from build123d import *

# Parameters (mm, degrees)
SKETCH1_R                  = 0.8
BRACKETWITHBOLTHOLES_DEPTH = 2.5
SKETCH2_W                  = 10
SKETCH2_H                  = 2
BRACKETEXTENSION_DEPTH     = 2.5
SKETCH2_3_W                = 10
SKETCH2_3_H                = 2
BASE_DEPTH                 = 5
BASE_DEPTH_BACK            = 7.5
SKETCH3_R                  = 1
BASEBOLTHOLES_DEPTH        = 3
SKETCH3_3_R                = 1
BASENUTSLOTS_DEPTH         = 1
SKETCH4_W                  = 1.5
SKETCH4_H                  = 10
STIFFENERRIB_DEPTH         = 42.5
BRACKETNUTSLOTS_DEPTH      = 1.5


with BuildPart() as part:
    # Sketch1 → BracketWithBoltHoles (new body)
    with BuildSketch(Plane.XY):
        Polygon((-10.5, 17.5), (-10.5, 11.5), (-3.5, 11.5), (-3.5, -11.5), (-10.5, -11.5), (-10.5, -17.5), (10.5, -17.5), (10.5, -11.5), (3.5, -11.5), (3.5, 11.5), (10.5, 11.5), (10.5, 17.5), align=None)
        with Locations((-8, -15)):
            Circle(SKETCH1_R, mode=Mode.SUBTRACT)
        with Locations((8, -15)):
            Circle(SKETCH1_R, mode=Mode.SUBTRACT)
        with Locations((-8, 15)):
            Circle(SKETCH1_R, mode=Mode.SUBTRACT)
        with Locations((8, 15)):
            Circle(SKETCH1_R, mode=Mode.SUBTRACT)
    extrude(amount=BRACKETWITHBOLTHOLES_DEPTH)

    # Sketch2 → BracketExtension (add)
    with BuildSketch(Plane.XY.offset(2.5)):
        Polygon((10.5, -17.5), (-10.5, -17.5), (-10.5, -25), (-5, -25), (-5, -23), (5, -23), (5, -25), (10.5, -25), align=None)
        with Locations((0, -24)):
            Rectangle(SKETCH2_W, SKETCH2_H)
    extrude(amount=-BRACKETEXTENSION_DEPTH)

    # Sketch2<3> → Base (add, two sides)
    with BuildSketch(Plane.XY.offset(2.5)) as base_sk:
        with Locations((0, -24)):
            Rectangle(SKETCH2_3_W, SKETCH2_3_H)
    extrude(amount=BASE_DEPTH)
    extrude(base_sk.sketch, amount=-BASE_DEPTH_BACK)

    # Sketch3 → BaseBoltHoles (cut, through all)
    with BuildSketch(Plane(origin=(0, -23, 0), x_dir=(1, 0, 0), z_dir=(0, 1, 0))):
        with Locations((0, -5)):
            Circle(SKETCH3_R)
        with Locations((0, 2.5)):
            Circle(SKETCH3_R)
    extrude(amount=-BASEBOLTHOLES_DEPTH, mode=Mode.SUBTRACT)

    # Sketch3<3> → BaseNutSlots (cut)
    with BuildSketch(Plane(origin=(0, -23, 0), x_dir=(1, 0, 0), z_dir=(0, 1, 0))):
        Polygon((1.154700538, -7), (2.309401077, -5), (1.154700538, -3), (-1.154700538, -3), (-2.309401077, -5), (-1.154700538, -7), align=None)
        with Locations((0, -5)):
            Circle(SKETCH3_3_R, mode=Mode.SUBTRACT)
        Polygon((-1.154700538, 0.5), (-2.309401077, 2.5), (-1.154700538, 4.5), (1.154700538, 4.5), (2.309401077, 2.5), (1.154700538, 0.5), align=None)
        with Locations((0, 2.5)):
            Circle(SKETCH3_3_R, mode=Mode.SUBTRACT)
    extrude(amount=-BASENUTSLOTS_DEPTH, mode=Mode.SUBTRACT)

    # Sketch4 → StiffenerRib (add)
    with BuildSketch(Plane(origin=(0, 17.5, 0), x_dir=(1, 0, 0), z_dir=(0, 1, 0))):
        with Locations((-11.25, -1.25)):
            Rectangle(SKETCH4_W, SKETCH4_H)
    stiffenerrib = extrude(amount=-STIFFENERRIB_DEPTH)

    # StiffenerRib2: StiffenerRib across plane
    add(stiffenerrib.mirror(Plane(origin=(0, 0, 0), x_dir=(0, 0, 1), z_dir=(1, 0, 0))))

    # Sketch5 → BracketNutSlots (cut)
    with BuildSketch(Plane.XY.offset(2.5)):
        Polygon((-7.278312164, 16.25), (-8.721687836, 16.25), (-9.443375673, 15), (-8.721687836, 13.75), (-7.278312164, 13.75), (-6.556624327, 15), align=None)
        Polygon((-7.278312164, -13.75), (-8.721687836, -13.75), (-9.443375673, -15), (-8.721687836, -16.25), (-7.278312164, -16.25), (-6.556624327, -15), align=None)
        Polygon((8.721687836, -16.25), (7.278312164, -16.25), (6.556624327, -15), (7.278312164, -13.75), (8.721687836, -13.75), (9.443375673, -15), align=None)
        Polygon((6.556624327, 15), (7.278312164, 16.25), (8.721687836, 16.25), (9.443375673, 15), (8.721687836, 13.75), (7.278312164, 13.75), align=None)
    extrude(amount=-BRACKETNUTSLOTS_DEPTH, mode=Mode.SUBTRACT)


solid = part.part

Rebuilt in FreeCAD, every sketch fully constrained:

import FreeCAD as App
import Part
import Sketcher

V = App.Vector
Q = App.Units.Quantity


def add_polygon(sketch, points):
    """Adds a closed chain of lines whose ends are joined by coincident constraints."""
    first, n = sketch.GeometryCount, len(points)
    for a, b in zip(points, points[1:] + points[:1]):
        sketch.addGeometry(Part.LineSegment(App.Vector(*a, 0), App.Vector(*b, 0)), False)
    for i in range(n):
        sketch.addConstraint(Sketcher.Constraint("Coincident", first + i, 2, first + (i + 1) % n, 1))

doc = App.newDocument("Part")
body = doc.addObject("PartDesign::Body", "Body")

sketch1 = body.newObject("Sketcher::SketchObject", "Sketch")
sketch1.AttachmentSupport = (doc.getObject("XY_Plane"), [""])
sketch1.MapMode = "FlatFace"
add_polygon(sketch1, [(-10.5, 17.5), (-10.5, 11.5), (-3.5, 11.5), (-3.5, -11.5), (-10.5, -11.5), (-10.5, -17.5), (10.5, -17.5), (10.5, -11.5), (3.5, -11.5), (3.5, 11.5), (10.5, 11.5), (10.5, 17.5)])
sketch1.addGeometry(Part.Circle(V(-8, -15, 0), V(0, 0, 1), 0.8), False)
sketch1.addGeometry(Part.Circle(V(8, -15, 0), V(0, 0, 1), 0.8), False)
sketch1.addGeometry(Part.Circle(V(-8, 15, 0), V(0, 0, 1), 0.8), False)
sketch1.addGeometry(Part.Circle(V(8, 15, 0), V(0, 0, 1), 0.8), False)
sketch1.addConstraint([
    Sketcher.Constraint("Vertical", 0),
    Sketcher.Constraint("Horizontal", 1),
    Sketcher.Constraint("Vertical", 2),
    Sketcher.Constraint("Horizontal", 3),
    Sketcher.Constraint("Vertical", 4),
    Sketcher.Constraint("Horizontal", 5),
    Sketcher.Constraint("Vertical", 6),
    Sketcher.Constraint("Horizontal", 7),
    Sketcher.Constraint("Vertical", 8),
    Sketcher.Constraint("Horizontal", 9),
    Sketcher.Constraint("Vertical", 10),
    Sketcher.Constraint("Horizontal", 11),
    Sketcher.Constraint("Equal", 12, 13),
    Sketcher.Constraint("Equal", 13, 14),
    Sketcher.Constraint("Equal", 14, 15),
    Sketcher.Constraint("Symmetric", 13, 3, 14, 3, -1, 1),
    Sketcher.Constraint("Symmetric", 12, 3, 15, 3, -1, 1),
    Sketcher.Constraint("Symmetric", 0, 2, 6, 2, -1, 1),
    Sketcher.Constraint("Symmetric", 2, 2, 8, 2, -1, 1),
    Sketcher.Constraint("Symmetric", 4, 2, 10, 2, -1, 1),
    Sketcher.Constraint("Symmetric", 12, 3, 13, 3, -2),
    Sketcher.Constraint("Symmetric", 3, 2, 6, 2, -2),
    Sketcher.Constraint("Diameter", 12, 1.6),
    Sketcher.Constraint("DistanceX", 1, 1, 1, 2, 7.0),
    Sketcher.Constraint("DistanceX", 5, 1, 5, 2, 21.0),
    Sketcher.Constraint("DistanceY", 0, 2, 0, 1, 6.0),
    Sketcher.Constraint("DistanceY", 2, 2, 2, 1, 23.0),
    Sketcher.Constraint("DistanceX", 12, 3, -1, 1, 8.0),
    Sketcher.Constraint("DistanceY", 12, 3, -1, 1, 15.0),
])
pad1 = body.newObject("PartDesign::Pad", "Pad")
pad1.Profile = sketch1
pad1.Length = 2.5

sketch2 = body.newObject("Sketcher::SketchObject", "Sketch001")
sketch2.AttachmentSupport = (doc.getObject("XY_Plane"), [""])
sketch2.MapMode = "FlatFace"
sketch2.AttachmentOffset = App.Placement(V(0, 0, 2.5), App.Rotation())
add_polygon(sketch2, [(10, -18), (-10, -18), (-10, -25), (10, -25)])
sketch2.addConstraint([
    Sketcher.Constraint("Horizontal", 0),
    Sketcher.Constraint("Vertical", 1),
    Sketcher.Constraint("Horizontal", 2),
    Sketcher.Constraint("Vertical", 3),
    Sketcher.Constraint("DistanceX", 0, 2, 0, 1, 21.0),
    Sketcher.Constraint("DistanceY", 1, 2, 1, 1, 7.5),
    Sketcher.Constraint("DistanceY", 1, 2, -1, 1, 25.0),
    Sketcher.Constraint("DistanceX", 0, 2, -1, 1, 10.5),
])
pad2 = body.newObject("PartDesign::Pad", "Pad001")
pad2.Profile = sketch2
pad2.Length = 2.5
pad2.Reversed = True

sketch3 = body.newObject("Sketcher::SketchObject", "Sketch002")
sketch3.AttachmentSupport = (doc.getObject("XY_Plane"), [""])
sketch3.MapMode = "FlatFace"
sketch3.AttachmentOffset = App.Placement(V(0, 0, 2.5), App.Rotation())
add_polygon(sketch3, [(-5, -23), (-5, -25), (5, -25), (5, -23)])
sketch3.addConstraint([
    Sketcher.Constraint("Vertical", 0),
    Sketcher.Constraint("Horizontal", 1),
    Sketcher.Constraint("Vertical", 2),
    Sketcher.Constraint("Horizontal", 3),
    Sketcher.Constraint("DistanceX", 1, 1, 1, 2, 10.0),
    Sketcher.Constraint("DistanceY", 0, 2, 0, 1, 2.0),
    Sketcher.Constraint("DistanceX", 0, 2, -1, 1, 5.0),
    Sketcher.Constraint("DistanceY", 0, 2, -1, 1, 25.0),
])
pad3 = body.newObject("PartDesign::Pad", "Pad002")
pad3.Profile = sketch3
pad3.Type = "TwoLengths"
pad3.Length = 5
pad3.Length2 = 7.5

sketch4 = body.newObject("Sketcher::SketchObject", "Sketch003")
sketch4.AttachmentSupport = (doc.getObject("XZ_Plane"), [""])
sketch4.MapMode = "FlatFace"
sketch4.AttachmentOffset = App.Placement(V(0, 0, 23), App.Rotation())
sketch4.addGeometry([
    Part.Circle(V(0, 5, 0), V(0, 0, 1), 1),
    Part.Circle(V(0, -2.5, 0), V(0, 0, 1), 1),
], False)
sketch4.addConstraint([
    Sketcher.Constraint("Equal", 0, 1),
    Sketcher.Constraint("PointOnObject", 0, 3, -2),
    Sketcher.Constraint("PointOnObject", 1, 3, -2),
    Sketcher.Constraint("Diameter", 0, 2.0),
    Sketcher.Constraint("DistanceY", -1, 1, 0, 3, 5.0),
    Sketcher.Constraint("DistanceY", 1, 3, -1, 1, 2.5),
])
pocket1 = body.newObject("PartDesign::Pocket", "Pocket")
pocket1.Profile = sketch4
pocket1.Type = "ThroughAll"
pocket1.Reversed = True

sketch5 = body.newObject("Sketcher::SketchObject", "Sketch004")
sketch5.AttachmentSupport = (doc.getObject("XZ_Plane"), [""])
sketch5.MapMode = "FlatFace"
sketch5.AttachmentOffset = App.Placement(V(0, 0, 23), App.Rotation())
add_polygon(sketch5, [(1.2, 7), (2.3, 5), (1.2, 3), (-1.2, 3), (-2.3, 5), (-1.2, 7)])
sketch5.addGeometry(Part.Circle(V(0, 5, 0), V(0, 0, 1), 1), False)
add_polygon(sketch5, [(-2.3, -2.5), (-1.2, -0.5), (1.2, -0.5), (2.3, -2.5), (1.2, -4.5), (-1.2, -4.5)])
sketch5.addGeometry(Part.Circle(V(0, -2.5, 0), V(0, 0, 1), 1), False)
sketch5.addConstraint([
    Sketcher.Constraint("Horizontal", 2),
    Sketcher.Constraint("Horizontal", 5),
    Sketcher.Constraint("Horizontal", 8),
    Sketcher.Constraint("Horizontal", 11),
    Sketcher.Constraint("Equal", 6, 13),
    Sketcher.Constraint("Symmetric", 0, 2, 3, 2, -2),
    Sketcher.Constraint("Symmetric", 9, 2, 12, 2, -2),
    Sketcher.Constraint("PointOnObject", 6, 3, -2),
    Sketcher.Constraint("PointOnObject", 13, 3, -2),
    Sketcher.Constraint("Parallel", 0, 3),
    Sketcher.Constraint("Parallel", 1, 4),
    Sketcher.Constraint("Parallel", 4, 7),
    Sketcher.Constraint("Parallel", 3, 9),
    Sketcher.Constraint("Parallel", 7, 10),
    Sketcher.Constraint("Parallel", 9, 12),
    Sketcher.Constraint("Horizontal", 6, 3, 0, 2),
    Sketcher.Constraint("Horizontal", 13, 3, 9, 2),
    Sketcher.Constraint("Vertical", 2, 2, 4, 2),
    Sketcher.Constraint("Vertical", 1, 2, 5, 2),
    Sketcher.Constraint("Vertical", 4, 2, 7, 2),
    Sketcher.Constraint("Vertical", 0, 2, 9, 2),
    Sketcher.Constraint("Vertical", 8, 2, 10, 2),
    Sketcher.Constraint("Diameter", 6, 2.0),
    Sketcher.Constraint("Angle", 0, Q("-60 deg")),
    Sketcher.Constraint("DistanceY", -1, 1, 6, 3, 5.0),
    Sketcher.Constraint("DistanceY", -1, 1, 1, 2, 3.0),
    Sketcher.Constraint("DistanceY", 13, 3, -1, 1, 2.5),
    Sketcher.Constraint("DistanceX", 2, 2, 2, 1, 2.309401),
])
pocket2 = body.newObject("PartDesign::Pocket", "Pocket001")
pocket2.Profile = sketch5
pocket2.Length = 1
pocket2.Reversed = True

sketch6 = body.newObject("Sketcher::SketchObject", "Sketch005")
sketch6.AttachmentSupport = (doc.getObject("XZ_Plane"), [""])
sketch6.MapMode = "FlatFace"
sketch6.AttachmentOffset = App.Placement(V(0, 0, -17.5), App.Rotation())
add_polygon(sketch6, [(-12, -3.8), (-12, 6.2), (-10.5, 6.2), (-10.5, -3.8)])
sketch6.addConstraint([
    Sketcher.Constraint("Vertical", 0),
    Sketcher.Constraint("Horizontal", 1),
    Sketcher.Constraint("Vertical", 2),
    Sketcher.Constraint("Horizontal", 3),
    Sketcher.Constraint("DistanceY", 0, 1, 0, 2, 10.0),
    Sketcher.Constraint("DistanceX", 1, 1, 1, 2, 1.5),
    Sketcher.Constraint("DistanceX", 0, 2, -1, 1, 12.0),
    Sketcher.Constraint("DistanceY", -1, 1, 0, 2, 6.25),
])
pad4 = body.newObject("PartDesign::Pad", "Pad003")
pad4.Profile = sketch6
pad4.Length = 42.5
doc.recompute()

mirrored = body.newObject("PartDesign::Mirrored", "Mirrored")
mirrored.Originals = [pad4]
mirrored.MirrorPlane = (doc.getObject("YZ_Plane"), [""])
body.Tip = mirrored

sketch7 = body.newObject("Sketcher::SketchObject", "Sketch006")
sketch7.AttachmentSupport = (doc.getObject("XY_Plane"), [""])
sketch7.MapMode = "FlatFace"
sketch7.AttachmentOffset = App.Placement(V(0, 0, 2.5), App.Rotation())
add_polygon(sketch7, [(-7.3, 16.2), (-8.7, 16.2), (-9.4, 15), (-8.7, 13.8), (-7.3, 13.8), (-6.6, 15)])
add_polygon(sketch7, [(-7.3, -13.8), (-8.7, -13.8), (-9.4, -15), (-8.7, -16.2), (-7.3, -16.2), (-6.6, -15)])
add_polygon(sketch7, [(7.3, -16.2), (8.7, -16.2), (9.4, -15), (8.7, -13.8), (7.3, -13.8), (6.6, -15)])
add_polygon(sketch7, [(7.3, 16.2), (6.6, 15), (7.3, 13.8), (8.7, 13.8), (9.4, 15), (8.7, 16.2)])
sketch7.addConstraint([
    Sketcher.Constraint("Horizontal", 0),
    Sketcher.Constraint("Horizontal", 3),
    Sketcher.Constraint("Horizontal", 6),
    Sketcher.Constraint("Horizontal", 9),
    Sketcher.Constraint("Horizontal", 12),
    Sketcher.Constraint("Horizontal", 15),
    Sketcher.Constraint("Horizontal", 20),
    Sketcher.Constraint("Horizontal", 23),
    Sketcher.Constraint("Symmetric", 0, 2, 12, 2, -1, 1),
    Sketcher.Constraint("Symmetric", 1, 2, 13, 2, -1, 1),
    Sketcher.Constraint("Symmetric", 2, 2, 14, 2, -1, 1),
    Sketcher.Constraint("Symmetric", 4, 2, 16, 2, -1, 1),
    Sketcher.Constraint("Symmetric", 10, 2, 18, 2, -1, 1),
    Sketcher.Constraint("Symmetric", 11, 2, 19, 2, -1, 1),
    Sketcher.Constraint("Symmetric", 7, 2, 21, 2, -1, 1),
    Sketcher.Constraint("Symmetric", 8, 2, 22, 2, -1, 1),
    Sketcher.Constraint("Symmetric", 8, 2, 12, 2, -2),
    Sketcher.Constraint("Symmetric", 7, 2, 13, 2, -2),
    Sketcher.Constraint("Symmetric", 6, 2, 14, 2, -2),
    Sketcher.Constraint("Symmetric", 10, 2, 16, 2, -2),
    Sketcher.Constraint("Parallel", 1, 4),
    Sketcher.Constraint("Parallel", 2, 5),
    Sketcher.Constraint("Parallel", 4, 7),
    Sketcher.Constraint("Parallel", 7, 10),
    Sketcher.Constraint("Parallel", 8, 11),
    Sketcher.Constraint("Parallel", 13, 16),
    Sketcher.Constraint("Parallel", 14, 17),
    Sketcher.Constraint("Parallel", 16, 18),
    Sketcher.Constraint("Parallel", 18, 21),
    Sketcher.Constraint("Horizontal", 1, 2, 4, 2),
    Sketcher.Constraint("Vertical", 0, 2, 2, 2),
    Sketcher.Constraint("Angle", 1, Q("-120 deg")),
    Sketcher.Constraint("DistanceY", -1, 1, 1, 2, 15.0),
    Sketcher.Constraint("DistanceX", 9, 2, 12, 2, 16.0),
    Sketcher.Constraint("DistanceY", 2, 2, 0, 2, 2.5),
    Sketcher.Constraint("DistanceX", 0, 2, 0, 1, 1.443376),
])
pocket3 = body.newObject("PartDesign::Pocket", "Pocket002")
pocket3.Profile = sketch7
pocket3.Length = 1.5

doc.recompute()
